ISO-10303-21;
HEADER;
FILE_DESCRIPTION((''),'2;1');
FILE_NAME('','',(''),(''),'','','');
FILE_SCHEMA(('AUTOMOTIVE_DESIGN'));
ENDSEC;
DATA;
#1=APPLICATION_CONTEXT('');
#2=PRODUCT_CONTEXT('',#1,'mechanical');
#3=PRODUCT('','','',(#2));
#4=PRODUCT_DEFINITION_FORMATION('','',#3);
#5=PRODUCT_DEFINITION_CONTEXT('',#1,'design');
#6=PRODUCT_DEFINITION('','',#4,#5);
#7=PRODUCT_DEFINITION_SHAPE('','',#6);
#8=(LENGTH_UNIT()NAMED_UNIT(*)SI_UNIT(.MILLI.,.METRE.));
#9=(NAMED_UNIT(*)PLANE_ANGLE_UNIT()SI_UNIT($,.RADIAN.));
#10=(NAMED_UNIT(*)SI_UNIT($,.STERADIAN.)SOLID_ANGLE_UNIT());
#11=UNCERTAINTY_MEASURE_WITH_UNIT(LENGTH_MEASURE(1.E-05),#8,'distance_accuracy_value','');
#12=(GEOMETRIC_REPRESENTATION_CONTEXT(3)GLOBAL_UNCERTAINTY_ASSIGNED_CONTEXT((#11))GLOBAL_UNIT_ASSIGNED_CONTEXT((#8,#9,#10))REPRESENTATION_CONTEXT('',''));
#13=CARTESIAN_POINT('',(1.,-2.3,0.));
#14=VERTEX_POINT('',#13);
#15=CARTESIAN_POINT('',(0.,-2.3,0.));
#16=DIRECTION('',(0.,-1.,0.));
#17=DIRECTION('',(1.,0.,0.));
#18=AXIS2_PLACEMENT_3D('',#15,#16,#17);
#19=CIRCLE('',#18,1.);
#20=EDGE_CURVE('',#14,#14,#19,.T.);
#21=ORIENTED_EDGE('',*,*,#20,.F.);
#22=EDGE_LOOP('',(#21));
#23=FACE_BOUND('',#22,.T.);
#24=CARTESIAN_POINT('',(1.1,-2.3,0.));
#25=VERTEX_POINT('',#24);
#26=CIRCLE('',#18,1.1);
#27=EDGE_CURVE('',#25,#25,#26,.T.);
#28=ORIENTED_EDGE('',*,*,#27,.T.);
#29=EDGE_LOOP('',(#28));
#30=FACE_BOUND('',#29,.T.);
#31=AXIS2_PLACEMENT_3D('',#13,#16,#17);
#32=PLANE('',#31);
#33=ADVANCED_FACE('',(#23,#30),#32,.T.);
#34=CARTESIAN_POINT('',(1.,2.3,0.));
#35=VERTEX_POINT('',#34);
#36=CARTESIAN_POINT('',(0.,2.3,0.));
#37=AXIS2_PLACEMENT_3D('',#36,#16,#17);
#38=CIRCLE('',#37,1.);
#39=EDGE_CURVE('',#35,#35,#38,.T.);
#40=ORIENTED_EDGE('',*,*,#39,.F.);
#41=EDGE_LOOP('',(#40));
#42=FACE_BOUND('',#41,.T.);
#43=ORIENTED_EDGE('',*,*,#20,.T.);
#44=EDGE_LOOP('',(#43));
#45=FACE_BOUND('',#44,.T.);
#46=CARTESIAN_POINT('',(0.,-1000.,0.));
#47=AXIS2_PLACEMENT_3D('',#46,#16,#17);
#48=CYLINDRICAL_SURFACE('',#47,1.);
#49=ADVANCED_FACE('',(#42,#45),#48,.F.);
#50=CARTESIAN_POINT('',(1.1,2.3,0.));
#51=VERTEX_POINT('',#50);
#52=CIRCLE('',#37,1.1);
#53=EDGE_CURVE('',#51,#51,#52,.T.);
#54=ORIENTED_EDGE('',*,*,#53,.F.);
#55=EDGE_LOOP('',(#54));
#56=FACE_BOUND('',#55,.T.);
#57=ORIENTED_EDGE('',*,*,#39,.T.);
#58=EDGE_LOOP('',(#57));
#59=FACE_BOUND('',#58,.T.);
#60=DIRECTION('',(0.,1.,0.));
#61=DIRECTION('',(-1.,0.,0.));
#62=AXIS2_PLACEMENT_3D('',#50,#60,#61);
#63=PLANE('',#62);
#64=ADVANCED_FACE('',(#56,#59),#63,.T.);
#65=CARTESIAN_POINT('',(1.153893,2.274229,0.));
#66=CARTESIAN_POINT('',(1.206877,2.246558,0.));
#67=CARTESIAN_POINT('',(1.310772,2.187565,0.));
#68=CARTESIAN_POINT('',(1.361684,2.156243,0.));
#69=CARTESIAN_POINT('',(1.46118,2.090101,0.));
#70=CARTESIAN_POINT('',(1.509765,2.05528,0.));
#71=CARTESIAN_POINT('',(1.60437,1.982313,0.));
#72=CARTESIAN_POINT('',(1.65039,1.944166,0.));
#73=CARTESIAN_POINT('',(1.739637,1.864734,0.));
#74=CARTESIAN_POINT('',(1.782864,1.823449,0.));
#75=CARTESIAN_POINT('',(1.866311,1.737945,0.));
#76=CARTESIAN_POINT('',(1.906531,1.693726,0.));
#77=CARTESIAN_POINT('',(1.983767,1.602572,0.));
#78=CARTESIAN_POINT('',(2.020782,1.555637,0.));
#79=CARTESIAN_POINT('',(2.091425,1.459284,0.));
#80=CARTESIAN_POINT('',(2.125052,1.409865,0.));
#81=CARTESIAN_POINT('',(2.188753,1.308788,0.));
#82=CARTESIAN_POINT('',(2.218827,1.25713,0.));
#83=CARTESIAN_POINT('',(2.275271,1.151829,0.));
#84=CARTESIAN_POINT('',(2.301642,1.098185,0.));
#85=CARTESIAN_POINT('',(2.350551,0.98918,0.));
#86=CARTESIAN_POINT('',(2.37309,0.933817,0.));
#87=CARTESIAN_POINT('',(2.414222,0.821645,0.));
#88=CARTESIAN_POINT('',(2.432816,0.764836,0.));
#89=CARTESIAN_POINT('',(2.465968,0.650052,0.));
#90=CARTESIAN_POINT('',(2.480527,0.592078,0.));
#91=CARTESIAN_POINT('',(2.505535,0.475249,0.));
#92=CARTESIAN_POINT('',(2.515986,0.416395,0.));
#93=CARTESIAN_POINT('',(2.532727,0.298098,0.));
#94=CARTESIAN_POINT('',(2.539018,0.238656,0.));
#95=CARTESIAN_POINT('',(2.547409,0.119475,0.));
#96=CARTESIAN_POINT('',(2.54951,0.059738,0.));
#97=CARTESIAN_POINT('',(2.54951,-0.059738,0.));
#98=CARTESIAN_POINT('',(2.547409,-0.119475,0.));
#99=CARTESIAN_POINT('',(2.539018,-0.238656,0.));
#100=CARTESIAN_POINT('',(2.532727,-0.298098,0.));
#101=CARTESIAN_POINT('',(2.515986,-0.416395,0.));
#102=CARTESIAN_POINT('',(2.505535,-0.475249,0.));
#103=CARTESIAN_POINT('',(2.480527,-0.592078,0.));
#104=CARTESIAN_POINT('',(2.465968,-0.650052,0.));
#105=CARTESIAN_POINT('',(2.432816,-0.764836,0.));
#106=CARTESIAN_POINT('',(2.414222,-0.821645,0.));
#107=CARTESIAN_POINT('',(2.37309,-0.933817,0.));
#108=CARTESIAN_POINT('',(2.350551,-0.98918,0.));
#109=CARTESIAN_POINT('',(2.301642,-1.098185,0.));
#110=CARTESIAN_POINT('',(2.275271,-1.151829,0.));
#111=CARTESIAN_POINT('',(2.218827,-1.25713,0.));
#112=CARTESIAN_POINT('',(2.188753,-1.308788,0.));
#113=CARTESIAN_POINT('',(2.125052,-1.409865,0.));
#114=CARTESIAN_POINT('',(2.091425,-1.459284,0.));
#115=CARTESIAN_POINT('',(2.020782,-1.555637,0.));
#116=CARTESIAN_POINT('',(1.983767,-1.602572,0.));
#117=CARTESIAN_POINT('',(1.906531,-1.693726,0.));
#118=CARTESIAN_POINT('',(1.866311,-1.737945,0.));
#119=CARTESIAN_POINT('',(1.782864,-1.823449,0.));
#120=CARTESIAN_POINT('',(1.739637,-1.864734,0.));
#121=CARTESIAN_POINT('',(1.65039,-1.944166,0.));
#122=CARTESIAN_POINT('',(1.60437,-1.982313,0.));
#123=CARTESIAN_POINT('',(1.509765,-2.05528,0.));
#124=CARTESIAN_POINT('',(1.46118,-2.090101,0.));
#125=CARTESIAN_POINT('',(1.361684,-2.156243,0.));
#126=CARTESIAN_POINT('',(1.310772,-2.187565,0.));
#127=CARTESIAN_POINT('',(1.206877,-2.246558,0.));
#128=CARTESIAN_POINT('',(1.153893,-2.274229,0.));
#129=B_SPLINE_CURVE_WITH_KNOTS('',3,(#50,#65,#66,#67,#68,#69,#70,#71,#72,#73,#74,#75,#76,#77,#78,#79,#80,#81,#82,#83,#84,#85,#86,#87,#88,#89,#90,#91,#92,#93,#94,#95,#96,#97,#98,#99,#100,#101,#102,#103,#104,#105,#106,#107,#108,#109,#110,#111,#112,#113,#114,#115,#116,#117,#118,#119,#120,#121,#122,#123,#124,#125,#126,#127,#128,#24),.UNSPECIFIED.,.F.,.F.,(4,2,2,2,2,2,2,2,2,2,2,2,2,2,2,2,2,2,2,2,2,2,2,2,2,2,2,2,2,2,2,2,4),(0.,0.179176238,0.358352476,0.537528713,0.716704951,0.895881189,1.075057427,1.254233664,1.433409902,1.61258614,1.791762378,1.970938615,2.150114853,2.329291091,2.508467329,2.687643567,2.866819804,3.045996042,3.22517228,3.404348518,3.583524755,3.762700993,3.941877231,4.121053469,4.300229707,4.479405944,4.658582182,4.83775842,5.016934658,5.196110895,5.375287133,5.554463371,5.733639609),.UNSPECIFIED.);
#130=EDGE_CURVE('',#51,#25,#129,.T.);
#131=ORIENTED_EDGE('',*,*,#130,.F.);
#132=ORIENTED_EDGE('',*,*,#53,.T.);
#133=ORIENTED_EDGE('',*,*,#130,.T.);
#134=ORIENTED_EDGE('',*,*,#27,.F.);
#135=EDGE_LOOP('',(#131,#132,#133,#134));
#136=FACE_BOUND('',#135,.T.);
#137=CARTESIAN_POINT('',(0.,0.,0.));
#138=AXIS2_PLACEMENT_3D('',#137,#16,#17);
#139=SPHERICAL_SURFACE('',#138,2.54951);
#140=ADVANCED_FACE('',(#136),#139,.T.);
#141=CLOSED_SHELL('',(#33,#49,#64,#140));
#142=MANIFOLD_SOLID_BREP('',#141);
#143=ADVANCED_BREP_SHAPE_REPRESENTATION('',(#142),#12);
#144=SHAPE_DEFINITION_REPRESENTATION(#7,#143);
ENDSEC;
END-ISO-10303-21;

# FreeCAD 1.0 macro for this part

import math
import FreeCAD as App
import Part
import Sketcher

V = App.Vector
Q = App.Units.Quantity

doc = App.newDocument("Part")
body = doc.addObject("PartDesign::Body", "Body")

# Sketch on XY plane
sketch1 = body.newObject("Sketcher::SketchObject", "Sketch")
sketch1.AttachmentSupport = (doc.getObject("XY_Plane"), [""])
sketch1.MapMode = "FlatFace"
sketch1.addGeometry([
    Part.LineSegment(V(1.1, 2.3, 0), V(1, 2.3, 0)),
    Part.LineSegment(V(1, 2.3, 0), V(1, -2.3, 0)),
    Part.LineSegment(V(1, -2.3, 0), V(1.1, -2.3, 0)),
    Part.ArcOfCircle(Part.Circle(V(0, 0, 0), V(0, 0, 1), 2.55), math.radians(-64), math.radians(64)),
], False)
sketch1.addConstraint([
    Sketcher.Constraint("Coincident", 0, 2, 1, 1),
    Sketcher.Constraint("Coincident", 1, 2, 2, 1),
    Sketcher.Constraint("Coincident", 2, 2, 3, 1),
    Sketcher.Constraint("Coincident", 3, 2, 0, 1),
    Sketcher.Constraint("Horizontal", 0),
    Sketcher.Constraint("Vertical", 1),
    Sketcher.Constraint("Horizontal", 2),
    Sketcher.Constraint("Coincident", 3, 3, -1, 1),
    Sketcher.Constraint("Vertical", 2, 2, 3, 2),
    Sketcher.Constraint("DistanceX", 0, 2, 0, 1, Q("0.1 mm")),
    Sketcher.Constraint("DistanceY", 1, 2, 1, 1, Q("4.6 mm")),
    Sketcher.Constraint("DistanceX", -1, 1, 0, 2, Q("1 mm")),
])
revolution = body.newObject("PartDesign::Revolution", "Revolution")
revolution.Profile = sketch1
revolution.ReferenceAxis = (sketch1, ["V_Axis"])
revolution.Angle = 360

doc.recompute()
